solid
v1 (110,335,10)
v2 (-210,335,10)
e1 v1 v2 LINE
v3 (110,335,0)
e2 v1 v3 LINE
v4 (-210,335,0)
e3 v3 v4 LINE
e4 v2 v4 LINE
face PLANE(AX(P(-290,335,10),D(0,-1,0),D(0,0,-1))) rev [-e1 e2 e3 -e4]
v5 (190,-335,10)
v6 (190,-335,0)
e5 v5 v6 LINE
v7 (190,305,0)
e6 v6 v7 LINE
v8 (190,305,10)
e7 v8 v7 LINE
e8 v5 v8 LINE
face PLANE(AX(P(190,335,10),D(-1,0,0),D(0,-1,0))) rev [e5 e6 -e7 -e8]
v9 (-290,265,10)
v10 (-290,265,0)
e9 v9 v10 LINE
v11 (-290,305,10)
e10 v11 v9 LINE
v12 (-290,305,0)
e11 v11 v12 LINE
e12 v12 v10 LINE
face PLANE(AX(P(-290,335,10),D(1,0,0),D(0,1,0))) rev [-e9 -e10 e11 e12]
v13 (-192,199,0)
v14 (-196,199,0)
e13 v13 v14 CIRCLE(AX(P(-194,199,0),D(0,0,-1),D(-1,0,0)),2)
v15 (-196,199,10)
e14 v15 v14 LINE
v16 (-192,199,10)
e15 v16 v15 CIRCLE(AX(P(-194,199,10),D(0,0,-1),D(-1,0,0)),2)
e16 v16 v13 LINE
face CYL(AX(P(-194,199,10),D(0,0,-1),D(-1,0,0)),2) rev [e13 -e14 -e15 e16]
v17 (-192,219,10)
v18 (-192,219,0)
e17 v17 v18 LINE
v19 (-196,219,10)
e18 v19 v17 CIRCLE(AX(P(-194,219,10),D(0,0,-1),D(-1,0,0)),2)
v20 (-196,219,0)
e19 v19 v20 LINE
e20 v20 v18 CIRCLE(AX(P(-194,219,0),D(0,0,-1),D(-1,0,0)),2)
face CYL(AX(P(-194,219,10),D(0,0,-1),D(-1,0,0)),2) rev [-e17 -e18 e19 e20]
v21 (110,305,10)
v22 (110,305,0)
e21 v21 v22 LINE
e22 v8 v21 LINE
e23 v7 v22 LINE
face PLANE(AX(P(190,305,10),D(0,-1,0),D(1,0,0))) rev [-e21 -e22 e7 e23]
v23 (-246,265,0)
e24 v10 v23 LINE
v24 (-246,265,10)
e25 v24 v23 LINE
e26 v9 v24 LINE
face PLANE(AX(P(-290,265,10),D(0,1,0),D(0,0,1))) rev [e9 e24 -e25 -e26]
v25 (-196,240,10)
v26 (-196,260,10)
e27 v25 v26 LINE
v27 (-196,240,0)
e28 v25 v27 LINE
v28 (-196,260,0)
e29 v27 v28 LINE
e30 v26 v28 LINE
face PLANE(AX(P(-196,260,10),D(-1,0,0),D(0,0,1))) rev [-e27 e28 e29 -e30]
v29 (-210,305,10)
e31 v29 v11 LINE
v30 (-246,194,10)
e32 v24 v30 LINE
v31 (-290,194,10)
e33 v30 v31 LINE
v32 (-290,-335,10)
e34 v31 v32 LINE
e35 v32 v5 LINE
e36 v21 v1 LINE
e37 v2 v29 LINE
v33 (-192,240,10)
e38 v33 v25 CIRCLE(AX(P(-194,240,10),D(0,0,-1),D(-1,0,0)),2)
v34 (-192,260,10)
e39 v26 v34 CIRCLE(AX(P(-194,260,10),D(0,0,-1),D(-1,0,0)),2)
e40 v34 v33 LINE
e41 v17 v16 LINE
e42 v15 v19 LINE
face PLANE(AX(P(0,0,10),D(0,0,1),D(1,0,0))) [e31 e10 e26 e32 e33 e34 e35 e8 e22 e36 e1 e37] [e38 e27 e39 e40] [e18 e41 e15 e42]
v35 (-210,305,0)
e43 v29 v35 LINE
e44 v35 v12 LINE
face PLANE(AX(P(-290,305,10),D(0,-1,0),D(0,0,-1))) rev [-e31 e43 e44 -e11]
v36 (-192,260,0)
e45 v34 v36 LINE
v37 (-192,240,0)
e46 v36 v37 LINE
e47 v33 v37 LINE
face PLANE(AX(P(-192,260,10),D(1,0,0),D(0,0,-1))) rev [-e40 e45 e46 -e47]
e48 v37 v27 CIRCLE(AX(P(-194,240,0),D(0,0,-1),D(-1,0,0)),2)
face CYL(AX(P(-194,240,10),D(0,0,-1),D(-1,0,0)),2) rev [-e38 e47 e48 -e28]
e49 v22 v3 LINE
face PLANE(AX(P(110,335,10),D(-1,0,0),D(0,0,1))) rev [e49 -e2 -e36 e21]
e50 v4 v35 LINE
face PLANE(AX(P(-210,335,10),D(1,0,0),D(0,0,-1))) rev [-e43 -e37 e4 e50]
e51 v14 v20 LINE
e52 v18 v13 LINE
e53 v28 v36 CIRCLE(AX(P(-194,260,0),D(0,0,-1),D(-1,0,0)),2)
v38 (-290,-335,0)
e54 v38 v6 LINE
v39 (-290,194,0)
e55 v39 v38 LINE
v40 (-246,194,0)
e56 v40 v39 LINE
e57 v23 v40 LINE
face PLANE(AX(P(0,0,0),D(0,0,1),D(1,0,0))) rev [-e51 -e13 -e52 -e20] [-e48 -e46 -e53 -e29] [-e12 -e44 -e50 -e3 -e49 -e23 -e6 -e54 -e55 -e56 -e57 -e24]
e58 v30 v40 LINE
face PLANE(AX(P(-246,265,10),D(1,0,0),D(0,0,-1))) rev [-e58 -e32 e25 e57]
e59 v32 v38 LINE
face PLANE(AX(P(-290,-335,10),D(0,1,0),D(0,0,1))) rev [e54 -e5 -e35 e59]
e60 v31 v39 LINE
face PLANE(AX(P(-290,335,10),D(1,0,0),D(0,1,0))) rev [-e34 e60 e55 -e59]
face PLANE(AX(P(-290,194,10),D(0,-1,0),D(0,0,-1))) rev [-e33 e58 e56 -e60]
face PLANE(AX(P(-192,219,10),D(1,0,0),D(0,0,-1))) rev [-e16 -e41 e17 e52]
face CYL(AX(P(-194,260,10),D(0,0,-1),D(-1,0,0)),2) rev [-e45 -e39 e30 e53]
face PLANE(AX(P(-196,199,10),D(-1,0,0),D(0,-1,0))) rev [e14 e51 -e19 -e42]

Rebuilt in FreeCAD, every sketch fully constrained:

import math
import FreeCAD as App
import Part
import Sketcher
Q = App.Units.Quantity


def add_polygon(sketch, points):
    """Adds a closed chain of lines whose ends are joined by coincident constraints."""
    first, n = sketch.GeometryCount, len(points)
    for a, b in zip(points, points[1:] + points[:1]):
        sketch.addGeometry(Part.LineSegment(App.Vector(*a, 0), App.Vector(*b, 0)), False)
    for i in range(n):
        sketch.addConstraint(Sketcher.Constraint("Coincident", first + i, 2, first + (i + 1) % n, 1))

doc = App.newDocument("Part")
body = doc.addObject("PartDesign::Body", "Body")

sketch1 = body.newObject("Sketcher::SketchObject", "Sketch")
sketch1.AttachmentSupport = (doc.getObject("XY_Plane"), [""])
sketch1.MapMode = "FlatFace"
add_polygon(sketch1, [(-290, 335), (-290, -335), (190, -335), (190, 335)])
sketch1.addConstraint([
    Sketcher.Constraint("Vertical", 0),
    Sketcher.Constraint("Horizontal", 1),
    Sketcher.Constraint("Vertical", 2),
    Sketcher.Constraint("Horizontal", 3),
    Sketcher.Constraint("DistanceX", 1, 1, 1, 2, Q("480 mm")),
    Sketcher.Constraint("DistanceY", 0, 2, 0, 1, Q("670 mm")),
    Sketcher.Constraint("DistanceX", 0, 2, -1, 1, Q("290 mm")),
    Sketcher.Constraint("DistanceY", 0, 2, -1, 1, Q("335 mm")),
])
pad1 = body.newObject("PartDesign::Pad", "Pad")
pad1.Profile = sketch1
pad1.Length = 10

sketch2 = body.newObject("Sketcher::SketchObject", "Sketch001")
sketch2.AttachmentSupport = (doc.getObject("XY_Plane"), [""])
sketch2.MapMode = "FlatFace"
add_polygon(sketch2, [(190, 335), (190, 305), (110, 305), (110, 335)])
add_polygon(sketch2, [(-210, 335), (-210, 305), (-290, 305), (-290, 335)])
sketch2.addConstraint([
    Sketcher.Constraint("Vertical", 0),
    Sketcher.Constraint("Horizontal", 1),
    Sketcher.Constraint("Vertical", 2),
    Sketcher.Constraint("Horizontal", 3),
    Sketcher.Constraint("Vertical", 4),
    Sketcher.Constraint("Horizontal", 5),
    Sketcher.Constraint("Vertical", 6),
    Sketcher.Constraint("Horizontal", 7),
    Sketcher.Constraint("Horizontal", 1, 2, 4, 2),
    Sketcher.Constraint("Horizontal", 3, 2, 6, 2),
    Sketcher.Constraint("Equal", 3, 5),
    Sketcher.Constraint("DistanceX", 1, 2, 1, 1, Q("80 mm")),
    Sketcher.Constraint("DistanceY", 0, 2, 0, 1, Q("30 mm")),
    Sketcher.Constraint("DistanceX", -1, 1, 0, 2, Q("190 mm")),
    Sketcher.Constraint("DistanceY", -1, 1, 0, 2, Q("305 mm")),
    Sketcher.Constraint("DistanceX", 4, 2, -1, 1, Q("210 mm")),
])
pocket1 = body.newObject("PartDesign::Pocket", "Pocket")
pocket1.Profile = sketch2
pocket1.Type = "ThroughAll"
pocket1.Reversed = True

sketch3 = body.newObject("Sketcher::SketchObject", "Sketch002")
sketch3.AttachmentSupport = (doc.getObject("XY_Plane"), [""])
sketch3.MapMode = "FlatFace"
sketch3.addGeometry(Part.LineSegment(App.Vector(-192, 260, 0), App.Vector(-192, 240, 0)), False)
sketch3.addGeometry(Part.ArcOfCircle(Part.Circle(App.Vector(-194, 240, 0), App.Vector(0, 0, 1), 2), math.radians(180), math.radians(360)), False)
sketch3.addGeometry(Part.LineSegment(App.Vector(-196, 240, 0), App.Vector(-196, 260, 0)), False)
sketch3.addGeometry(Part.ArcOfCircle(Part.Circle(App.Vector(-194, 260, 0), App.Vector(0, 0, 1), 2), math.radians(0), math.radians(180)), False)
sketch3.addGeometry(Part.LineSegment(App.Vector(-192, 219, 0), App.Vector(-192, 199, 0)), False)
sketch3.addGeometry(Part.ArcOfCircle(Part.Circle(App.Vector(-194, 199, 0), App.Vector(0, 0, 1), 2), math.radians(180), math.radians(360)), False)
sketch3.addGeometry(Part.LineSegment(App.Vector(-196, 199, 0), App.Vector(-196, 219, 0)), False)
sketch3.addGeometry(Part.ArcOfCircle(Part.Circle(App.Vector(-194, 219, 0), App.Vector(0, 0, 1), 2), math.radians(0), math.radians(180)), False)
add_polygon(sketch3, [(-246, 265), (-246, 194), (-290, 194), (-290, 265)])
sketch3.addConstraint([
    Sketcher.Constraint("Tangent", 0, 2, 1, 2),
    Sketcher.Constraint("Tangent", 1, 1, 2, 1),
    Sketcher.Constraint("Tangent", 2, 2, 3, 2),
    Sketcher.Constraint("Tangent", 3, 1, 0, 1),
    Sketcher.Constraint("Tangent", 4, 2, 5, 2),
    Sketcher.Constraint("Tangent", 5, 1, 6, 1),
    Sketcher.Constraint("Tangent", 6, 2, 7, 2),
    Sketcher.Constraint("Tangent", 7, 1, 4, 1),
    Sketcher.Constraint("Vertical", 0),
    Sketcher.Constraint("Vertical", 2),
    Sketcher.Constraint("Vertical", 4),
    Sketcher.Constraint("Vertical", 6),
    Sketcher.Constraint("Vertical", 8),
    Sketcher.Constraint("Horizontal", 9),
    Sketcher.Constraint("Vertical", 10),
    Sketcher.Constraint("Horizontal", 11),
    Sketcher.Constraint("Equal", 3, 5),
    Sketcher.Constraint("Vertical", 3, 3, 5, 3),
    Sketcher.Constraint("Equal", 2, 4),
    Sketcher.Constraint("Radius", 1, Q("2 mm")),
    Sketcher.Constraint("DistanceX", 9, 2, 9, 1, Q("44 mm")),
    Sketcher.Constraint("DistanceY", 0, 2, 0, 1, Q("20 mm")),
    Sketcher.Constraint("DistanceY", 8, 2, 8, 1, Q("71 mm")),
    Sketcher.Constraint("DistanceX", 1, 3, -1, 1, Q("194 mm")),
    Sketcher.Constraint("DistanceY", -1, 1, 1, 3, Q("240 mm")),
    Sketcher.Constraint("DistanceY", -1, 1, 5, 3, Q("199 mm")),
    Sketcher.Constraint("DistanceX", 8, 2, -1, 1, Q("246 mm")),
    Sketcher.Constraint("DistanceY", -1, 1, 8, 2, Q("194 mm")),
])
pocket2 = body.newObject("PartDesign::Pocket", "Pocket001")
pocket2.Profile = sketch3
pocket2.Type = "ThroughAll"
pocket2.Reversed = True

doc.recompute()
